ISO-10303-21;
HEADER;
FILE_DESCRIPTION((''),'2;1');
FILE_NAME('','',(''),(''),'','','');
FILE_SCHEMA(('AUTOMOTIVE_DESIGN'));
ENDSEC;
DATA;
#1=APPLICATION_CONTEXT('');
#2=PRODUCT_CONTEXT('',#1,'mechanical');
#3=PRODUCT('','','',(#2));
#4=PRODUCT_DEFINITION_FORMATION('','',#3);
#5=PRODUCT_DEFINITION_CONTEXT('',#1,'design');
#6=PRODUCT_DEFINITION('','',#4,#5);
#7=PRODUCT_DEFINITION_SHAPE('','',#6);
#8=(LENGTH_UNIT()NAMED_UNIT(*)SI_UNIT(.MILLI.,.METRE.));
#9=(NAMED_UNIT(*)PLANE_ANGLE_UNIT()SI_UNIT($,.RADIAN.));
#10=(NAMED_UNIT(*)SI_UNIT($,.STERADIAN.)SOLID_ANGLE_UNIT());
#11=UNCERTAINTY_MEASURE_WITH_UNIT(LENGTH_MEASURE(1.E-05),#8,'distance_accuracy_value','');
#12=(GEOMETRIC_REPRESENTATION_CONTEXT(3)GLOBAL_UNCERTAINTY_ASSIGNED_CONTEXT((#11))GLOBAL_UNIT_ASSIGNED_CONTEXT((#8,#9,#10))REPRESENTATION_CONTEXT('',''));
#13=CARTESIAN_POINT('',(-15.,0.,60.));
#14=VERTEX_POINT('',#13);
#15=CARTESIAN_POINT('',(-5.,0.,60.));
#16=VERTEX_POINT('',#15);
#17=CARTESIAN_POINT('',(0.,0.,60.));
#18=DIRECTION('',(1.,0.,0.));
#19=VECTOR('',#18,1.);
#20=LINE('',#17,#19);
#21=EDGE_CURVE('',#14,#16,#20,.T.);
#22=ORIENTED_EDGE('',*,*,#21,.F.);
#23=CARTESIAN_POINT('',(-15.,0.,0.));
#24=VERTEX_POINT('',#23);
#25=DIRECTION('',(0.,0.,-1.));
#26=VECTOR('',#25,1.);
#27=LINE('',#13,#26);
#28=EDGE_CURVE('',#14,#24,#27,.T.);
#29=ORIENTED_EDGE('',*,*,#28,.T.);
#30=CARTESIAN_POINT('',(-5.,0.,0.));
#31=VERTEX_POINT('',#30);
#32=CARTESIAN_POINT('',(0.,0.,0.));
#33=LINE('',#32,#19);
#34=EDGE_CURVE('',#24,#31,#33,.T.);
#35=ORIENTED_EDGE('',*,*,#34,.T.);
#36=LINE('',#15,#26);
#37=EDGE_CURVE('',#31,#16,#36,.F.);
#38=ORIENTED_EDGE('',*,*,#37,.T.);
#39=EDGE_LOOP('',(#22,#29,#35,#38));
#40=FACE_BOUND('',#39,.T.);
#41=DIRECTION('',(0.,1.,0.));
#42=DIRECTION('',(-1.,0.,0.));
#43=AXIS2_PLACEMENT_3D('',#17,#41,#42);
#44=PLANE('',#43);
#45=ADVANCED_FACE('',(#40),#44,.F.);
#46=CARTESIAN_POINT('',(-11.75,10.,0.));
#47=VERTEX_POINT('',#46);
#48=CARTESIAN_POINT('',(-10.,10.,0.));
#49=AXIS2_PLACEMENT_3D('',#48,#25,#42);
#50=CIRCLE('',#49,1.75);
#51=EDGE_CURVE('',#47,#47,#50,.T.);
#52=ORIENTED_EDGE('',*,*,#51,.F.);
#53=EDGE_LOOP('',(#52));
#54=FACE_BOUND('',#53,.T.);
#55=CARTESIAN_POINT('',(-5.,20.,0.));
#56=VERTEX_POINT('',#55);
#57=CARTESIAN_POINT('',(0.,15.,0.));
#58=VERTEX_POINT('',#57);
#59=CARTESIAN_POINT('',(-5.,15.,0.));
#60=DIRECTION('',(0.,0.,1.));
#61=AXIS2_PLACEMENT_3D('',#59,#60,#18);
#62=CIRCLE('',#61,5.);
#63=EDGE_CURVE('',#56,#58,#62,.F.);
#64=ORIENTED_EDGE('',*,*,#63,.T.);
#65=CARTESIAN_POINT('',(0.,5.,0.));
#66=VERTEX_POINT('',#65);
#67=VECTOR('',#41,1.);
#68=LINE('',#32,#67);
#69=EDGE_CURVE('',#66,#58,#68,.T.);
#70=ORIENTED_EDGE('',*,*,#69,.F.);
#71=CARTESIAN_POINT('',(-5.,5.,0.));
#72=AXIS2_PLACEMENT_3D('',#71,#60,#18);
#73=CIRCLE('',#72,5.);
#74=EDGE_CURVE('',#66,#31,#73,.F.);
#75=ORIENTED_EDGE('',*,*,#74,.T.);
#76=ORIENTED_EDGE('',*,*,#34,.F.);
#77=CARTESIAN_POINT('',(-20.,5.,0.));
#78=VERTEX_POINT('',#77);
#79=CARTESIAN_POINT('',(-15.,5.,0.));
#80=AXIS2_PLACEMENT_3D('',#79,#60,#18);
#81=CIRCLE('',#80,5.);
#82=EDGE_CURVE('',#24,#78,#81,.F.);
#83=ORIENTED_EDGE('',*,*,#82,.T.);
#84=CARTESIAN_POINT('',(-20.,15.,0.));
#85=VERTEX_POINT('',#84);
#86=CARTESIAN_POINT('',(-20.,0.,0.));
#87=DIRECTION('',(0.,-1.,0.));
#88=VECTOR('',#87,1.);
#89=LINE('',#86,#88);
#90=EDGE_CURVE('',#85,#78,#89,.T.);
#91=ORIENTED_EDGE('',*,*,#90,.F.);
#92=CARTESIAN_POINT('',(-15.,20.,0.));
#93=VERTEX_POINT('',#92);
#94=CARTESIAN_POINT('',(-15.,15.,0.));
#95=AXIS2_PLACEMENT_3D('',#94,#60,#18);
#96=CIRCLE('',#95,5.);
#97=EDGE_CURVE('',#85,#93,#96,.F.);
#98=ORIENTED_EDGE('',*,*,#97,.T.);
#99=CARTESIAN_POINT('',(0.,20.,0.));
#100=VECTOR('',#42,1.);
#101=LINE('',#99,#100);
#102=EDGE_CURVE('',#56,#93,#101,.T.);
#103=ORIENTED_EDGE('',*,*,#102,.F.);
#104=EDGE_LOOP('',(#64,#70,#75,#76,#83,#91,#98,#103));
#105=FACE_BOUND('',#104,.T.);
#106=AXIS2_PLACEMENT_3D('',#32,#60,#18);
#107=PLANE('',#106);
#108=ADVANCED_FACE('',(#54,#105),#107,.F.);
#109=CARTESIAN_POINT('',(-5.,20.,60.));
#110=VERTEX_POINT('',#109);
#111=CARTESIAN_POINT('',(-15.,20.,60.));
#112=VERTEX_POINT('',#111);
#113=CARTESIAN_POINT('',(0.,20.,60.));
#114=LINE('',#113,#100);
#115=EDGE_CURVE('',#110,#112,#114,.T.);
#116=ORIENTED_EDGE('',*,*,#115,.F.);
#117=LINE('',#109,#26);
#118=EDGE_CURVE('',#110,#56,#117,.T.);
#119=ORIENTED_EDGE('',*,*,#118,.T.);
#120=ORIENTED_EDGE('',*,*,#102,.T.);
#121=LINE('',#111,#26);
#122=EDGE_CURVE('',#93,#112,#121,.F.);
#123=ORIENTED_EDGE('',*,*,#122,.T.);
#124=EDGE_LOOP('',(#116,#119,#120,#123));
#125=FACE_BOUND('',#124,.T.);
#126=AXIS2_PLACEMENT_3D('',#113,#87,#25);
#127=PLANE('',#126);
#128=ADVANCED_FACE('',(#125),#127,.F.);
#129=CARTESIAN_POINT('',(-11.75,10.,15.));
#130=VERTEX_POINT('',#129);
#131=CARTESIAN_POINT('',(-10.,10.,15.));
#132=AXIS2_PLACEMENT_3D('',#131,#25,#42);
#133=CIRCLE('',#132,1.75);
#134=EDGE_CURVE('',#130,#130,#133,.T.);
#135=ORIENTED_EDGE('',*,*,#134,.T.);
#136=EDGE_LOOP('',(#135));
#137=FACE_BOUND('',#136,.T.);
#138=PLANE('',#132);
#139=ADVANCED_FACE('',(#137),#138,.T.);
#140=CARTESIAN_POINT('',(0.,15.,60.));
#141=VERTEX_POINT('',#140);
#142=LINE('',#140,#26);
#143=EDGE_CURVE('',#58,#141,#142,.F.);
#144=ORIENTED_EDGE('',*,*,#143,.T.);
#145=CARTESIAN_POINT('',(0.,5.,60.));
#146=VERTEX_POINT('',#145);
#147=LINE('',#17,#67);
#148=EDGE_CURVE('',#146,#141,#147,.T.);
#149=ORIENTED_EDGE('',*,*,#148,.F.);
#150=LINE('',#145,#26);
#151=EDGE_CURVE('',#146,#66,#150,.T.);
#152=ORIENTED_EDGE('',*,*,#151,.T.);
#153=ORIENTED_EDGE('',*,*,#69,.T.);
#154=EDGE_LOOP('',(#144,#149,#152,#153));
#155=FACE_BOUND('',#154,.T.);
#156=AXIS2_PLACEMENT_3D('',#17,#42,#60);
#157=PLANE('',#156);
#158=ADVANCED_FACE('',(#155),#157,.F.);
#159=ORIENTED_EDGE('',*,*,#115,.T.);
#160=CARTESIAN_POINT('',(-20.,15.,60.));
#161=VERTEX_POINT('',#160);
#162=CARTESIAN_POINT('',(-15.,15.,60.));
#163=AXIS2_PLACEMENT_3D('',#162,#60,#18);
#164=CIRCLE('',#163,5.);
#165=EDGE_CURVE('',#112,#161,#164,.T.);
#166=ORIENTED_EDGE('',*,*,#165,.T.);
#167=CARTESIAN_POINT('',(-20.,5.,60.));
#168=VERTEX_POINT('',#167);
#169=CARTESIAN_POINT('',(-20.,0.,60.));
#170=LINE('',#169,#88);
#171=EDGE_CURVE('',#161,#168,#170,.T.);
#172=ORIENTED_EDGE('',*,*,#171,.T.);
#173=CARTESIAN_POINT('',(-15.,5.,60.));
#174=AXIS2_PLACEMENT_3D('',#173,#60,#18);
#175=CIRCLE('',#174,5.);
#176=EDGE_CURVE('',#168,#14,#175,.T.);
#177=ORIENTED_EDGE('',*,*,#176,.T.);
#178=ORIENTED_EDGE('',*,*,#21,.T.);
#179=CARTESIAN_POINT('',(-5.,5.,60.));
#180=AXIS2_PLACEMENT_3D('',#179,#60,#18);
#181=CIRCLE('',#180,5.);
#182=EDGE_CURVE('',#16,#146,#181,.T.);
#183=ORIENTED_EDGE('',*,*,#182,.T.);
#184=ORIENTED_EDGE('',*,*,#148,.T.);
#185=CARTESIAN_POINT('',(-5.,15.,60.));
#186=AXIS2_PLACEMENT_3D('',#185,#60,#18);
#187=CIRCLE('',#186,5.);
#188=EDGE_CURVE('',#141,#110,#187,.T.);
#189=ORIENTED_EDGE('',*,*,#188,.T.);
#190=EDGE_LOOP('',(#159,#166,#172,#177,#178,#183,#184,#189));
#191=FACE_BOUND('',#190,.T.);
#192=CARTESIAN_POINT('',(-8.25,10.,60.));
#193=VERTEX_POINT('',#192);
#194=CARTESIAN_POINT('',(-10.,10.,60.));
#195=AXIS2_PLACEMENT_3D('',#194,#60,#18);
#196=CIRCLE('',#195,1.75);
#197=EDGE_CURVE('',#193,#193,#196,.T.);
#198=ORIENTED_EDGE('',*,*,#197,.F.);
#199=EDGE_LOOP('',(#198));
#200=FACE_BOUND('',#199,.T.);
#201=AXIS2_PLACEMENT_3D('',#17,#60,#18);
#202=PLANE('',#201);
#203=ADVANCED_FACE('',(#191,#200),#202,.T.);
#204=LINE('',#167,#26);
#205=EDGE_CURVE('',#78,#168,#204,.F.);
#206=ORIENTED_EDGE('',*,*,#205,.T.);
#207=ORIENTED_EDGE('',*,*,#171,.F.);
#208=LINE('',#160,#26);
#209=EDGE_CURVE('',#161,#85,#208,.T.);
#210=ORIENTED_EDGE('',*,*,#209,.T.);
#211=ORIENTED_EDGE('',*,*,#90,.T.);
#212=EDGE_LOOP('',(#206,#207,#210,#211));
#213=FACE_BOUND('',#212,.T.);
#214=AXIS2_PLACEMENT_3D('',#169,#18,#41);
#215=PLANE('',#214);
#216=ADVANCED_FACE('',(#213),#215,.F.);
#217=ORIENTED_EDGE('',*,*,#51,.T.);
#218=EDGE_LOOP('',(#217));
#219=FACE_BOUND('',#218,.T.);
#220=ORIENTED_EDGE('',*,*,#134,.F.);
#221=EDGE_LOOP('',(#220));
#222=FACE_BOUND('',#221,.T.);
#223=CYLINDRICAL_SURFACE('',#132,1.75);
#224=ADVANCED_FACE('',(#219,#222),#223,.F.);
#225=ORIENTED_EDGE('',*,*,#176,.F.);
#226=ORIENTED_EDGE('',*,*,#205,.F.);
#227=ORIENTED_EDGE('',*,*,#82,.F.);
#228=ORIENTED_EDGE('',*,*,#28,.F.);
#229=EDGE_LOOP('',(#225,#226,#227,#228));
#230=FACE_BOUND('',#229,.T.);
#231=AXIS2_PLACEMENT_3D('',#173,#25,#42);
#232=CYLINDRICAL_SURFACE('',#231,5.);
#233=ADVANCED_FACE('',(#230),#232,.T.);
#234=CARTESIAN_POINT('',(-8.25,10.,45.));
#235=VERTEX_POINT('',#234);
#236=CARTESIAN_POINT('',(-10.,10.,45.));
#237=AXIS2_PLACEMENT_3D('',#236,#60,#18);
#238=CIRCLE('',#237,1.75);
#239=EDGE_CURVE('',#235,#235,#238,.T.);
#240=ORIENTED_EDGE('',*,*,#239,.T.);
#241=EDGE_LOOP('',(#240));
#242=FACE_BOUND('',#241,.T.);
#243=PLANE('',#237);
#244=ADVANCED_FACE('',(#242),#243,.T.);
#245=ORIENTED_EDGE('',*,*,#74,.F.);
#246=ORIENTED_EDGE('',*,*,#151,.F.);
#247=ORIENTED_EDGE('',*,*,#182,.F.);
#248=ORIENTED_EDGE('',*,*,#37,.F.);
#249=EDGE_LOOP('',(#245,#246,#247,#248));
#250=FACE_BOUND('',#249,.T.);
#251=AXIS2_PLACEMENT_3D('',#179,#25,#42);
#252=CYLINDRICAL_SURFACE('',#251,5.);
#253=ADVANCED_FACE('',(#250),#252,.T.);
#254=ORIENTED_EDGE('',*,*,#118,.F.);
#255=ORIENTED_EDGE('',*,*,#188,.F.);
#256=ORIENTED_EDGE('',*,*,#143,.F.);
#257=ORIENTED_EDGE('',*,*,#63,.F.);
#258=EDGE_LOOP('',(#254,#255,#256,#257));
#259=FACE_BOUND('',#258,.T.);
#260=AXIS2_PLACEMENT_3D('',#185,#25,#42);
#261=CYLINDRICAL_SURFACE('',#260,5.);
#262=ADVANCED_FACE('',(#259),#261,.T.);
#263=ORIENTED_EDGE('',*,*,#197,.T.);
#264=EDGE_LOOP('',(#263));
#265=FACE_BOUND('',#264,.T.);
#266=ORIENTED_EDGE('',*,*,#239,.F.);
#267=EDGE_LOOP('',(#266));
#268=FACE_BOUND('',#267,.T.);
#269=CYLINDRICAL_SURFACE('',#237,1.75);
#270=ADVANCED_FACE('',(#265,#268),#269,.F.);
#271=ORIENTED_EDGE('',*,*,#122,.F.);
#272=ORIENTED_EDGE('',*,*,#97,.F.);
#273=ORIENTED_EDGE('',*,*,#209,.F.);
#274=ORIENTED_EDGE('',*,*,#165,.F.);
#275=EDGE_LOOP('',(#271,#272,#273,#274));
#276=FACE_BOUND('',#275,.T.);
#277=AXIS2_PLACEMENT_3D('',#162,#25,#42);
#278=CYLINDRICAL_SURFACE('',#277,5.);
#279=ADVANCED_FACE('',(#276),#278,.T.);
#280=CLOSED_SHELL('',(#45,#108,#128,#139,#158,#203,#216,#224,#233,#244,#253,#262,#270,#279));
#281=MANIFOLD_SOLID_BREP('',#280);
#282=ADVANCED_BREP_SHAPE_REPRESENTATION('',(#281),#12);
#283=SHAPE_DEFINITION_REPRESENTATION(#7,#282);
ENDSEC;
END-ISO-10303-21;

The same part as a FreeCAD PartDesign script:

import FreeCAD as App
import Part
import Sketcher
from FreeCAD import Vector
Q = App.Units.Quantity


def edges_at(feature, points):
    """Names of the edges that pass closest to the given points."""
    edges = feature.Shape.Edges
    near = lambda p: min(range(len(edges)), key=lambda i: edges[i].distToShape(Part.Vertex(*p))[0])
    return sorted({f"Edge{near(p) + 1}" for p in points})


def add_polygon(sketch, points):
    """Adds a closed chain of lines whose ends are joined by coincident constraints."""
    first, n = sketch.GeometryCount, len(points)
    for a, b in zip(points, points[1:] + points[:1]):
        sketch.addGeometry(Part.LineSegment(App.Vector(*a, 0), App.Vector(*b, 0)), False)
    for i in range(n):
        sketch.addConstraint(Sketcher.Constraint("Coincident", first + i, 2, first + (i + 1) % n, 1))

doc = App.newDocument("Part")
body = doc.addObject("PartDesign::Body", "Body")

# Sketch on XY plane
sketch1 = doc.addObject("Sketcher::SketchObject", "Sketch")
body.addObject(sketch1)
sketch1.AttachmentSupport = (doc.XY_Plane, [""])
sketch1.MapMode = "FlatFace"
add_polygon(sketch1, [(-20, 20), (-20, 0), (0, 0), (0, 20)])  # lines 0-3
sketch1.addConstraint([
    Sketcher.Constraint("Vertical", 0),
    Sketcher.Constraint("Horizontal", 1),
    Sketcher.Constraint("Vertical", 2),
    Sketcher.Constraint("Horizontal", 3),
    Sketcher.Constraint("Coincident", 1, 2, -1, 1),
    Sketcher.Constraint("Equal", 3, 0),
    Sketcher.Constraint("DistanceX", 1, 1, 1, 2, Q("20 mm")),
])
pad1 = doc.addObject("PartDesign::Pad", "Pad")
body.addObject(pad1)
pad1.Profile = sketch1
pad1.Length = 60

# Sketch on XY plane
sketch2 = doc.addObject("Sketcher::SketchObject", "Sketch001")
body.addObject(sketch2)
sketch2.AttachmentSupport = (doc.XY_Plane, [""])
sketch2.MapMode = "FlatFace"
sketch2.AttachmentOffset = App.Placement(Vector(0, 0, 60), App.Rotation())
sketch2.addGeometry(Part.Circle(Vector(-10, 10, 0), Vector(0, 0, 1), 1.8), False)
sketch2.addConstraint([
    Sketcher.Constraint("Diameter", 0, Q("3.5 mm")),
    Sketcher.Constraint("DistanceX", 0, 3, -1, 1, Q("10 mm")),
    Sketcher.Constraint("DistanceY", -1, 1, 0, 3, Q("10 mm")),
])
pocket1 = doc.addObject("PartDesign::Pocket", "Pocket")
body.addObject(pocket1)
pocket1.Profile = sketch2
pocket1.Length = 15

# Sketch on XY plane
sketch3 = doc.addObject("Sketcher::SketchObject", "Sketch002")
body.addObject(sketch3)
sketch3.AttachmentSupport = (doc.XY_Plane, [""])
sketch3.MapMode = "FlatFace"
sketch3.AttachmentOffset = App.Placement(Vector(0, 0, 15), App.Rotation())
sketch3.addGeometry(Part.Circle(Vector(-10, 10, 0), Vector(0, 0, 1), 1.8), False)
sketch3.addConstraint([
    Sketcher.Constraint("Diameter", 0, Q("3.5 mm")),
    Sketcher.Constraint("DistanceX", 0, 3, -1, 1, Q("10 mm")),
    Sketcher.Constraint("DistanceY", -1, 1, 0, 3, Q("10 mm")),
])
pocket2 = doc.addObject("PartDesign::Pocket", "Pocket001")
body.addObject(pocket2)
pocket2.Profile = sketch3
pocket2.Length = 15
doc.recompute()

fillet = doc.addObject("PartDesign::Fillet", "Fillet")
body.addObject(fillet)
fillet.Base = (pocket2, edges_at(pocket2, [
    (0, 0, 30),
    (-20, 0, 30),
    (-20, 20, 30),
    (0, 20, 30),
]))
fillet.Radius = 5

doc.recompute()
